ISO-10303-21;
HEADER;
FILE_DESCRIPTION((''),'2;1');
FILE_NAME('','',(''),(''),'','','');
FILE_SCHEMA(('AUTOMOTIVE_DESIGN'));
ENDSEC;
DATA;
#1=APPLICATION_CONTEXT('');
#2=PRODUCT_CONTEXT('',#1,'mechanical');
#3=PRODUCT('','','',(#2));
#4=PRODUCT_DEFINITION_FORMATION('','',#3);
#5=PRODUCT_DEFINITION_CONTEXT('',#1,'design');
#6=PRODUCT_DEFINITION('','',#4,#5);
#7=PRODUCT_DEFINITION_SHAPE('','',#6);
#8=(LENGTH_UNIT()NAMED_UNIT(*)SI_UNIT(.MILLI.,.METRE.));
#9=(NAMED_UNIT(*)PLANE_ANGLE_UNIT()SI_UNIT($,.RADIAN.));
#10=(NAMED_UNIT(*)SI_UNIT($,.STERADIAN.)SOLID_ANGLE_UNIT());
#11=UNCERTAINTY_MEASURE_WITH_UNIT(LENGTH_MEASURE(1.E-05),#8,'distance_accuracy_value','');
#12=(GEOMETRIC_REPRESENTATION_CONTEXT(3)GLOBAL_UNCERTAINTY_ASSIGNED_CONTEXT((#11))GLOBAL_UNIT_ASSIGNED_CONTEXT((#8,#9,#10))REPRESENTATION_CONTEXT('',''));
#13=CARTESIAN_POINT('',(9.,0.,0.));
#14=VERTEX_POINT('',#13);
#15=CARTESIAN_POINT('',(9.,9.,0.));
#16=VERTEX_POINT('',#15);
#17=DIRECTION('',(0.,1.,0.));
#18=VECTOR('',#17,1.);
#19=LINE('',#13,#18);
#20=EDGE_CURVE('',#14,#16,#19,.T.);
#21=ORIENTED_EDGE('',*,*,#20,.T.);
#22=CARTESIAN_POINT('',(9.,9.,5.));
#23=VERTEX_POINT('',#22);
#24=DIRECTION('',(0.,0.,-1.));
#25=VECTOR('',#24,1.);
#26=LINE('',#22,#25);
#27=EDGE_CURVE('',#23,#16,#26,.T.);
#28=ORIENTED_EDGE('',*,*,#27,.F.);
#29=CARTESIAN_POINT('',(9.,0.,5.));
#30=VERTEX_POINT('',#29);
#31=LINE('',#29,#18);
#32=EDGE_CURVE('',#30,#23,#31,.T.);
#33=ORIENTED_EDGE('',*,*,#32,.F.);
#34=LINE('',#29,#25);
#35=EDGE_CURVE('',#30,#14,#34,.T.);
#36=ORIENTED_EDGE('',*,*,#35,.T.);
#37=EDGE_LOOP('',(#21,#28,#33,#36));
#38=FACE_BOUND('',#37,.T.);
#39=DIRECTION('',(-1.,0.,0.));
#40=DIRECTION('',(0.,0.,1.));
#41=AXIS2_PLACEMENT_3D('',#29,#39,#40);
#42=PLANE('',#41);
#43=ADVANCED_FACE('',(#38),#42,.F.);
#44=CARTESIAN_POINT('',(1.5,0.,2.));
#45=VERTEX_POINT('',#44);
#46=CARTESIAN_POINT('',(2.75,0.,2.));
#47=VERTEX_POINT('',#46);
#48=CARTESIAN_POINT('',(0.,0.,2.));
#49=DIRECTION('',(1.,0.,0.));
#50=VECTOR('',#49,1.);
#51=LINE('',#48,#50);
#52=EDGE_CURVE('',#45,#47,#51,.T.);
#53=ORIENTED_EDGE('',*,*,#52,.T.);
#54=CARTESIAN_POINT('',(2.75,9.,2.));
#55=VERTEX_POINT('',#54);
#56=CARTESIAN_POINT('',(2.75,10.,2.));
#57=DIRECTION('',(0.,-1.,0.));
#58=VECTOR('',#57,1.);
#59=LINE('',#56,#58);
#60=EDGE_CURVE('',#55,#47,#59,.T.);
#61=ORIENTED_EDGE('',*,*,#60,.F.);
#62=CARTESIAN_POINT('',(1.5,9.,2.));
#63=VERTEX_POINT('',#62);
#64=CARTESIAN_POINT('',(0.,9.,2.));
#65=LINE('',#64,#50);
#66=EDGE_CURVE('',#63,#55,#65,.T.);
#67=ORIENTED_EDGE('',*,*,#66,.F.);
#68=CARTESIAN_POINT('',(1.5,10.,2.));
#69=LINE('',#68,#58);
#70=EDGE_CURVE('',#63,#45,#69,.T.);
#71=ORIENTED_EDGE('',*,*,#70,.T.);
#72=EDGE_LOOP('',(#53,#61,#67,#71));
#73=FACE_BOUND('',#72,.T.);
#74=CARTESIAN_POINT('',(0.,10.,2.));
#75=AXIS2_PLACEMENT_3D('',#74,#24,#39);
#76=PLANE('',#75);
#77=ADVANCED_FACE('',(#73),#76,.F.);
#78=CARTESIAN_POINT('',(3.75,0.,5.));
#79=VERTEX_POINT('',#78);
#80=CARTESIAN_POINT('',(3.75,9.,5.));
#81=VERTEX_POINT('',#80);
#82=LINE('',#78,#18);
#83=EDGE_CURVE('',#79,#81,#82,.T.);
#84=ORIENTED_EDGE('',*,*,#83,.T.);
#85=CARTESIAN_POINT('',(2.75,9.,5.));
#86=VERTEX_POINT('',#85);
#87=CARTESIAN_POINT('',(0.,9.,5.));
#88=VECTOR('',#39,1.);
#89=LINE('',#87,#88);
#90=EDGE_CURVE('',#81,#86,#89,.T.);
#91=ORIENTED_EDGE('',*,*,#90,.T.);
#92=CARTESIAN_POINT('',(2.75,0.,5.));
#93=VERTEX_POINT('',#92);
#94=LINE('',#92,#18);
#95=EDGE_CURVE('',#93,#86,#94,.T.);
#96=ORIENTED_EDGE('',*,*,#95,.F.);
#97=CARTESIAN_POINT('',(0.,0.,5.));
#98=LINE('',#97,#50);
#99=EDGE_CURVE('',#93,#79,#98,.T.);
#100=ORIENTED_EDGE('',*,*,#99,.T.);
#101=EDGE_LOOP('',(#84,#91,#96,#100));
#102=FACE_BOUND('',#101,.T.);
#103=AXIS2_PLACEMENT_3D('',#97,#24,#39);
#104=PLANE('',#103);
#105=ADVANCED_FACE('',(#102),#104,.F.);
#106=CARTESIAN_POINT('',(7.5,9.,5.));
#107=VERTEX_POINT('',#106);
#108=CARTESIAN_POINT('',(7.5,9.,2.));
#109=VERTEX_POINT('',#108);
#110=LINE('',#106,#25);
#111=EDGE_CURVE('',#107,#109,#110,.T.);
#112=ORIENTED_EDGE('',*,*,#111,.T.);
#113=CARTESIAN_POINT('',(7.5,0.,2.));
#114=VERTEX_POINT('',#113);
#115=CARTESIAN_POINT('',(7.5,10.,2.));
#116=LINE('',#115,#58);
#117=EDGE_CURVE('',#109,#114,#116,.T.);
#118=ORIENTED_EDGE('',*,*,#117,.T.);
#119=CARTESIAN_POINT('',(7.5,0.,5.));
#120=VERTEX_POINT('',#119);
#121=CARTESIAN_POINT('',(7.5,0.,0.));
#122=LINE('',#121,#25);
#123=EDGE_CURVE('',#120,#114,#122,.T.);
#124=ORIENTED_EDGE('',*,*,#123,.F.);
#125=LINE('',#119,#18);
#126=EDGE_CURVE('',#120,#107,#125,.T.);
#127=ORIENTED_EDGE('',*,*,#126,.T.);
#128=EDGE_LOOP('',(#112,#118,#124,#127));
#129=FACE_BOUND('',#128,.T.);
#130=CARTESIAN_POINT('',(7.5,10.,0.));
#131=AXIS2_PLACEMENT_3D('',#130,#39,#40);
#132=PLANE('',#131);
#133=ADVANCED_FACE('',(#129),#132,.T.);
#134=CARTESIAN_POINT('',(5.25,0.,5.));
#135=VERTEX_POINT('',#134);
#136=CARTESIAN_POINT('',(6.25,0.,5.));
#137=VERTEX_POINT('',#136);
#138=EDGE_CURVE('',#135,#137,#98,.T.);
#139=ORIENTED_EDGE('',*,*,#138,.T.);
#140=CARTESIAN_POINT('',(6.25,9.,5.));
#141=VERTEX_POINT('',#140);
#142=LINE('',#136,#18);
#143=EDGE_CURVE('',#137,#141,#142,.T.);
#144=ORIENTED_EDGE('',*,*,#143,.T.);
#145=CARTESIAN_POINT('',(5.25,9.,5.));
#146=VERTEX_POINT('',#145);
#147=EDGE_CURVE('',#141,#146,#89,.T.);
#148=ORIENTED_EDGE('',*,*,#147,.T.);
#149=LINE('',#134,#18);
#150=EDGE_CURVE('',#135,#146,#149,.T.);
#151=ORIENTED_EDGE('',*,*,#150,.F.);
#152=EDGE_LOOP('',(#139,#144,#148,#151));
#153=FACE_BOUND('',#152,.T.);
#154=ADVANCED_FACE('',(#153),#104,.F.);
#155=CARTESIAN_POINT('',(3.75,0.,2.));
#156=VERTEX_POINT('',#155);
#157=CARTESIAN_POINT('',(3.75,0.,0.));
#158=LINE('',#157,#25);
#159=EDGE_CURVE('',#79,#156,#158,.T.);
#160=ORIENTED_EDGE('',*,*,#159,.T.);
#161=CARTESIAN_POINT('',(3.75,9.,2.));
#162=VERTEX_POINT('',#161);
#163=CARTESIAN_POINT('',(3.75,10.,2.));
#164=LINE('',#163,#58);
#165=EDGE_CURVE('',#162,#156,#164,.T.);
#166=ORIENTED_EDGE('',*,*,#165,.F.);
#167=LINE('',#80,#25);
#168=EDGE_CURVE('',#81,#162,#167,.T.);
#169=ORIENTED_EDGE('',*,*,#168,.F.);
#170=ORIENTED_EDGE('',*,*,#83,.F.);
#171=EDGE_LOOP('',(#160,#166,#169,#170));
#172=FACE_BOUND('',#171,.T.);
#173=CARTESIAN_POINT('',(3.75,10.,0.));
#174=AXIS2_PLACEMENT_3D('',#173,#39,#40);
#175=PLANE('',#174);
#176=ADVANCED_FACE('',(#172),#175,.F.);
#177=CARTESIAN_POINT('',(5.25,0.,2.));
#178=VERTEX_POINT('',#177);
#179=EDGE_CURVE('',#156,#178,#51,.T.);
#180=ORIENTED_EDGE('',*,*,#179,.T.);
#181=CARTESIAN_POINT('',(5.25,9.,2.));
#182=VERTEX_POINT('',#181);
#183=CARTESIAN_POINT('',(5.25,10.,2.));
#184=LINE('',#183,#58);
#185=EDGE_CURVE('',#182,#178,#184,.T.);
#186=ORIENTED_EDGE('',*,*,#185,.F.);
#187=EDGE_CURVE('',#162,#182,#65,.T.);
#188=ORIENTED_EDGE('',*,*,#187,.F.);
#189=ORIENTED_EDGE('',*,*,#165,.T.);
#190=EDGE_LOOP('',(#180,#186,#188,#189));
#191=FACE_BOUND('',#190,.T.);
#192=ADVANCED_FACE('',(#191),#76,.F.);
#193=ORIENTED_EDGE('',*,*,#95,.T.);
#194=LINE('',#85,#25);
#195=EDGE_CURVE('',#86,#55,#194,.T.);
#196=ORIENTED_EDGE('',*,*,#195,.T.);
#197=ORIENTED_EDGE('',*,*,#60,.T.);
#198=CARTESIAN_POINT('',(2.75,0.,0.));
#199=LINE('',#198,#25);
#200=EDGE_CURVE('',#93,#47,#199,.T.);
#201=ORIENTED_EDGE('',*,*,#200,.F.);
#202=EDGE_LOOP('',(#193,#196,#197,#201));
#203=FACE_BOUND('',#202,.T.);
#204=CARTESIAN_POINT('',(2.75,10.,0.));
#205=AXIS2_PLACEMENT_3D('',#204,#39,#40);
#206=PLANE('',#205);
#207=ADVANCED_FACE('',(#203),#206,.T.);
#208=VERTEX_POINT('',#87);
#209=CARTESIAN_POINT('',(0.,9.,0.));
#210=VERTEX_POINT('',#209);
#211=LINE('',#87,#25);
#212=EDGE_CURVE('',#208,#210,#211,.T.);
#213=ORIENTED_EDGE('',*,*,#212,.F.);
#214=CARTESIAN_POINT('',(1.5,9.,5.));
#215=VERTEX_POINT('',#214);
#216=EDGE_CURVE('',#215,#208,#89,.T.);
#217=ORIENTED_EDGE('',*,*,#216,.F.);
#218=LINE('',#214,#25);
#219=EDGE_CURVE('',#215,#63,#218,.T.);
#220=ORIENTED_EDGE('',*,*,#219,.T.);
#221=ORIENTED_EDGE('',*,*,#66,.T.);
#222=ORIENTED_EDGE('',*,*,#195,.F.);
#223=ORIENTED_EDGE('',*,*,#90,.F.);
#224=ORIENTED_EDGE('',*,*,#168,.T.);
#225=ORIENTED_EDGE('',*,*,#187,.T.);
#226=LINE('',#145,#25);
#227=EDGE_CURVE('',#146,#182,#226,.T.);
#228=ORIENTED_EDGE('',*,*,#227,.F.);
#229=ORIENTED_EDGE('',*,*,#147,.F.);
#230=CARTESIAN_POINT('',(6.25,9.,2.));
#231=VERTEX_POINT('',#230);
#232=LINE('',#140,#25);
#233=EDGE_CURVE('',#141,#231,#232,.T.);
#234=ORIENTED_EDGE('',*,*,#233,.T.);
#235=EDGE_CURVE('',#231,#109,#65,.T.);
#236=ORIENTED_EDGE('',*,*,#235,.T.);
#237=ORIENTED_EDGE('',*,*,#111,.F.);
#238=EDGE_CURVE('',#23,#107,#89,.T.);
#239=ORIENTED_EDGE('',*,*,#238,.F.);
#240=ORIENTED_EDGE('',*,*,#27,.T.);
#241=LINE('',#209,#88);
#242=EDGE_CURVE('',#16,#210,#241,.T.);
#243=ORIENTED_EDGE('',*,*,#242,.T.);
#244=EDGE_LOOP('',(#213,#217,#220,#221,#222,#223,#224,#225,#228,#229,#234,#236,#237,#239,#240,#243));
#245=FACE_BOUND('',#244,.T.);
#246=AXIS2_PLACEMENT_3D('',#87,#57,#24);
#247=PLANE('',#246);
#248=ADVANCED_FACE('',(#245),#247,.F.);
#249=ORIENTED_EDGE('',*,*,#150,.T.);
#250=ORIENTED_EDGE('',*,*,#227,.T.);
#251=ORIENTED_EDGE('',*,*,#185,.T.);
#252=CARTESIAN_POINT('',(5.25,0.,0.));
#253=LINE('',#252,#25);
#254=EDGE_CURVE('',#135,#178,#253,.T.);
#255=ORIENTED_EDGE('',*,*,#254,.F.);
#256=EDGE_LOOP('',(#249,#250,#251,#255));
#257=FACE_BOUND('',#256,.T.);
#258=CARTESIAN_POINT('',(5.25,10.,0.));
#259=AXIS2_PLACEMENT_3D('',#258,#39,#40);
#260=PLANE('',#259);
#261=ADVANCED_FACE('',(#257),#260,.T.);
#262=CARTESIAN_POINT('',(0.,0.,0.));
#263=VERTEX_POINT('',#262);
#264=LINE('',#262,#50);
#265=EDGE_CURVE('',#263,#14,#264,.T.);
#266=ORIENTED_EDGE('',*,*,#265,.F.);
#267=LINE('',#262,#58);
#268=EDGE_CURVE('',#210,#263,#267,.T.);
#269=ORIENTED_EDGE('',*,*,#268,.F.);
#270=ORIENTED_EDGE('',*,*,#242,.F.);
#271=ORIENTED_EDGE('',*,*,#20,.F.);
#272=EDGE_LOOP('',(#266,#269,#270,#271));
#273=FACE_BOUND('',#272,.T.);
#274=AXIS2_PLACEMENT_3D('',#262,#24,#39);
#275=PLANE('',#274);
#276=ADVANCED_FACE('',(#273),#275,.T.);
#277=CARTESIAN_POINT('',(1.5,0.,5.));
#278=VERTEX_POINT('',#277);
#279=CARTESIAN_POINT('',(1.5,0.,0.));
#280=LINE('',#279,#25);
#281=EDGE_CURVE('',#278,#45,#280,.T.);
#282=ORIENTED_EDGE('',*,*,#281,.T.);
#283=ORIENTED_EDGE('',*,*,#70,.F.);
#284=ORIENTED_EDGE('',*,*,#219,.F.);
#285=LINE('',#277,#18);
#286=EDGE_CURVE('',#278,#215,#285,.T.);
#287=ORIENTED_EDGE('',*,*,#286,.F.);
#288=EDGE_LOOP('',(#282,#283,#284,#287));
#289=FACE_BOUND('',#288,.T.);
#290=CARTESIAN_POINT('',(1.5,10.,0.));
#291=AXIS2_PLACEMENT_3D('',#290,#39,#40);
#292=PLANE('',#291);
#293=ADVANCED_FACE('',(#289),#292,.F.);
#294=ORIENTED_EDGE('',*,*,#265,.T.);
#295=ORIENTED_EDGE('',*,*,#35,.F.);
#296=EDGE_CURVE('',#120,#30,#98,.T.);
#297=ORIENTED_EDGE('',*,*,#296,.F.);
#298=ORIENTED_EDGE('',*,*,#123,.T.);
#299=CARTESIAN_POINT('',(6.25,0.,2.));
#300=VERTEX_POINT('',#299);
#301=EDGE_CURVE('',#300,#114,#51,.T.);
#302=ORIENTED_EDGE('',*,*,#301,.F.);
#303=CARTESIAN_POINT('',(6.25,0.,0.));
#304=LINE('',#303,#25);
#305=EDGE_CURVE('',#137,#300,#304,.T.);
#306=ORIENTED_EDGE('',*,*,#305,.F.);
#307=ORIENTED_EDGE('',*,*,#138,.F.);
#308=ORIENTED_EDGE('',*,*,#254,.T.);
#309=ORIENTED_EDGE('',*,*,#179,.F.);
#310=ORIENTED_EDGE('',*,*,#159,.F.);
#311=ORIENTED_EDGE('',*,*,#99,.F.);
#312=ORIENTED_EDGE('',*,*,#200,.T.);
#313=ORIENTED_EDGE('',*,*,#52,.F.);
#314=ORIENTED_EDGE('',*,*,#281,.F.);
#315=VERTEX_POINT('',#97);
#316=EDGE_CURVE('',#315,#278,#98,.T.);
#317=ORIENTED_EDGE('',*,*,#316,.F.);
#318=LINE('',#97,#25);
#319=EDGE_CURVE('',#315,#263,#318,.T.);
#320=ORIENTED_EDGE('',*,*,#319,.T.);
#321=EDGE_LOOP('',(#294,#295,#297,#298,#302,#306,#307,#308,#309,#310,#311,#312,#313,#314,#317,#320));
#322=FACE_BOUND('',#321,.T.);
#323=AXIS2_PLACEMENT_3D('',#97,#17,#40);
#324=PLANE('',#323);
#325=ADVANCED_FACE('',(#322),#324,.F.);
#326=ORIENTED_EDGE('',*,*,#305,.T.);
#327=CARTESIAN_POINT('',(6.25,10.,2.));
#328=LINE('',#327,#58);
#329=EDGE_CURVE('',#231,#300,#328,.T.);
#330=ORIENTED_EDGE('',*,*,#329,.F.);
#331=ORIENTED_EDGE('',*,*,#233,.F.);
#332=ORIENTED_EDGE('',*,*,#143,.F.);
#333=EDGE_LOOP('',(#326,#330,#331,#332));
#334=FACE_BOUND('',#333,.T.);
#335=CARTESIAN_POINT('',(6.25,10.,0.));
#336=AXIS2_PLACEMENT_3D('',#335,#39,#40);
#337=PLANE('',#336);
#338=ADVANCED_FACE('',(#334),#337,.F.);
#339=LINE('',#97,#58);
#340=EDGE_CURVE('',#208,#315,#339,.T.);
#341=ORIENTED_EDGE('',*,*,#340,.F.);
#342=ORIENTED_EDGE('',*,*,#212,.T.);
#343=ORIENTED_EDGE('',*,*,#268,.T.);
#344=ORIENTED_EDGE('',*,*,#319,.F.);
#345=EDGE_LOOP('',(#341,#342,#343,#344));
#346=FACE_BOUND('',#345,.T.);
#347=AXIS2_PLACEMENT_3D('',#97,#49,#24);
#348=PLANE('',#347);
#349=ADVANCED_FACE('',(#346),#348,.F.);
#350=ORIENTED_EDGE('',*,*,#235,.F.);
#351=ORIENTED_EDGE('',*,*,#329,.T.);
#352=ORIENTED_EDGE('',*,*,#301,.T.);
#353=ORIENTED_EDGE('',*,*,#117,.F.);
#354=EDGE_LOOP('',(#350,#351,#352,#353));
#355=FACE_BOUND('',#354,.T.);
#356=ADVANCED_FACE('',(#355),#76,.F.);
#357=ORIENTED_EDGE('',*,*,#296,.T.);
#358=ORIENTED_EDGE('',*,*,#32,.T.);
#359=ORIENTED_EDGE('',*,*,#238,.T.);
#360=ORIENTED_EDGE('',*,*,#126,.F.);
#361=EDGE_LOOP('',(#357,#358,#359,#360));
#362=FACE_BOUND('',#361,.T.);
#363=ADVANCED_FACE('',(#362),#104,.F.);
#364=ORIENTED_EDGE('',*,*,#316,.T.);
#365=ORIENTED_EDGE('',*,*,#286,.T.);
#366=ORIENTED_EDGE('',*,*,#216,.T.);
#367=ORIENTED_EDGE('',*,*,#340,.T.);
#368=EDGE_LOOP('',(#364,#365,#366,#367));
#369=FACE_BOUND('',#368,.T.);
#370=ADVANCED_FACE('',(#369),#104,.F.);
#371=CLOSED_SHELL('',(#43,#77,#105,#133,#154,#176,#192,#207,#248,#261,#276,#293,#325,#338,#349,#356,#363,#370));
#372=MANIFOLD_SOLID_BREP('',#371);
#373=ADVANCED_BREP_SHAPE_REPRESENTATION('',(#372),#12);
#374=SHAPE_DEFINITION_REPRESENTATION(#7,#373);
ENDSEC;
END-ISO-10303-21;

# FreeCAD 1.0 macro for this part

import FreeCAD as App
import Part
import Sketcher


def add_polygon(sketch, points):
    """Adds a closed chain of lines whose ends are joined by coincident constraints."""
    first, n = sketch.GeometryCount, len(points)
    for a, b in zip(points, points[1:] + points[:1]):
        sketch.addGeometry(Part.LineSegment(App.Vector(*a, 0), App.Vector(*b, 0)), False)
    for i in range(n):
        sketch.addConstraint(Sketcher.Constraint("Coincident", first + i, 2, first + (i + 1) % n, 1))

doc = App.newDocument("Part")
body = doc.addObject("PartDesign::Body", "Body")

# Sketch on XY plane
sketch1 = body.newObject("Sketcher::SketchObject", "Sketch")
sketch1.AttachmentSupport = (doc.getObject("XY_Plane"), [""])
sketch1.MapMode = "FlatFace"
add_polygon(sketch1, [(0, 9), (0, 0), (9, 0), (9, 9)])  # lines 0-3
sketch1.addConstraint([
    Sketcher.Constraint("Vertical", 0),
    Sketcher.Constraint("Horizontal", 1),
    Sketcher.Constraint("Vertical", 2),
    Sketcher.Constraint("Horizontal", 3),
    Sketcher.Constraint("Coincident", 0, 2, -1, 1),
    Sketcher.Constraint("Equal", 3, 0),
    Sketcher.Constraint("DistanceX", 1, 1, 1, 2, 9.0),
])
pad1 = body.newObject("PartDesign::Pad", "Pad")
pad1.Profile = sketch1
pad1.Length = 5

# Sketch on XZ plane
sketch2 = body.newObject("Sketcher::SketchObject", "Sketch001")
sketch2.AttachmentSupport = (doc.getObject("XZ_Plane"), [""])
sketch2.MapMode = "FlatFace"
add_polygon(sketch2, [(1.5, 5), (1.5, 2), (2.75, 2), (2.75, 5)])  # lines 0-3
add_polygon(sketch2, [(3.75, 5), (3.75, 2), (5.25, 2), (5.25, 5)])  # lines 4-7
add_polygon(sketch2, [(6.25, 5), (6.25, 2), (7.5, 2), (7.5, 5)])  # lines 8-11
sketch2.addConstraint([
    Sketcher.Constraint("Vertical", 0),
    Sketcher.Constraint("Horizontal", 1),
    Sketcher.Constraint("Vertical", 2),
    Sketcher.Constraint("Horizontal", 3),
    Sketcher.Constraint("Vertical", 4),
    Sketcher.Constraint("Horizontal", 5),
    Sketcher.Constraint("Vertical", 6),
    Sketcher.Constraint("Horizontal", 7),
    Sketcher.Constraint("Vertical", 8),
    Sketcher.Constraint("Horizontal", 9),
    Sketcher.Constraint("Vertical", 10),
    Sketcher.Constraint("Horizontal", 11),
    Sketcher.Constraint("Horizontal", 1, 2, 4, 2),
    Sketcher.Constraint("Horizontal", 3, 2, 6, 2),
    Sketcher.Constraint("Horizontal", 5, 2, 8, 2),
    Sketcher.Constraint("Horizontal", 7, 2, 10, 2),
    Sketcher.Constraint("Equal", 3, 9),
    Sketcher.Constraint("DistanceY", 0, 2, 0, 1, 3.0),
    Sketcher.Constraint("DistanceX", 5, 1, 5, 2, 1.5),
    Sketcher.Constraint("DistanceY", -1, 1, 0, 2, 2.0),
    Sketcher.Constraint("DistanceX", 1, 2, 4, 2, 1.0),
    Sketcher.Constraint("DistanceX", 5, 2, 8, 2, 1.0),
    Sketcher.Constraint("DistanceX", 1, 1, 1, 2, 1.25),
    Sketcher.Constraint("DistanceX", -1, 1, 0, 2, 1.5),
])
pocket1 = body.newObject("PartDesign::Pocket", "Pocket")
pocket1.Profile = sketch2
pocket1.Length = 10

doc.recompute()
